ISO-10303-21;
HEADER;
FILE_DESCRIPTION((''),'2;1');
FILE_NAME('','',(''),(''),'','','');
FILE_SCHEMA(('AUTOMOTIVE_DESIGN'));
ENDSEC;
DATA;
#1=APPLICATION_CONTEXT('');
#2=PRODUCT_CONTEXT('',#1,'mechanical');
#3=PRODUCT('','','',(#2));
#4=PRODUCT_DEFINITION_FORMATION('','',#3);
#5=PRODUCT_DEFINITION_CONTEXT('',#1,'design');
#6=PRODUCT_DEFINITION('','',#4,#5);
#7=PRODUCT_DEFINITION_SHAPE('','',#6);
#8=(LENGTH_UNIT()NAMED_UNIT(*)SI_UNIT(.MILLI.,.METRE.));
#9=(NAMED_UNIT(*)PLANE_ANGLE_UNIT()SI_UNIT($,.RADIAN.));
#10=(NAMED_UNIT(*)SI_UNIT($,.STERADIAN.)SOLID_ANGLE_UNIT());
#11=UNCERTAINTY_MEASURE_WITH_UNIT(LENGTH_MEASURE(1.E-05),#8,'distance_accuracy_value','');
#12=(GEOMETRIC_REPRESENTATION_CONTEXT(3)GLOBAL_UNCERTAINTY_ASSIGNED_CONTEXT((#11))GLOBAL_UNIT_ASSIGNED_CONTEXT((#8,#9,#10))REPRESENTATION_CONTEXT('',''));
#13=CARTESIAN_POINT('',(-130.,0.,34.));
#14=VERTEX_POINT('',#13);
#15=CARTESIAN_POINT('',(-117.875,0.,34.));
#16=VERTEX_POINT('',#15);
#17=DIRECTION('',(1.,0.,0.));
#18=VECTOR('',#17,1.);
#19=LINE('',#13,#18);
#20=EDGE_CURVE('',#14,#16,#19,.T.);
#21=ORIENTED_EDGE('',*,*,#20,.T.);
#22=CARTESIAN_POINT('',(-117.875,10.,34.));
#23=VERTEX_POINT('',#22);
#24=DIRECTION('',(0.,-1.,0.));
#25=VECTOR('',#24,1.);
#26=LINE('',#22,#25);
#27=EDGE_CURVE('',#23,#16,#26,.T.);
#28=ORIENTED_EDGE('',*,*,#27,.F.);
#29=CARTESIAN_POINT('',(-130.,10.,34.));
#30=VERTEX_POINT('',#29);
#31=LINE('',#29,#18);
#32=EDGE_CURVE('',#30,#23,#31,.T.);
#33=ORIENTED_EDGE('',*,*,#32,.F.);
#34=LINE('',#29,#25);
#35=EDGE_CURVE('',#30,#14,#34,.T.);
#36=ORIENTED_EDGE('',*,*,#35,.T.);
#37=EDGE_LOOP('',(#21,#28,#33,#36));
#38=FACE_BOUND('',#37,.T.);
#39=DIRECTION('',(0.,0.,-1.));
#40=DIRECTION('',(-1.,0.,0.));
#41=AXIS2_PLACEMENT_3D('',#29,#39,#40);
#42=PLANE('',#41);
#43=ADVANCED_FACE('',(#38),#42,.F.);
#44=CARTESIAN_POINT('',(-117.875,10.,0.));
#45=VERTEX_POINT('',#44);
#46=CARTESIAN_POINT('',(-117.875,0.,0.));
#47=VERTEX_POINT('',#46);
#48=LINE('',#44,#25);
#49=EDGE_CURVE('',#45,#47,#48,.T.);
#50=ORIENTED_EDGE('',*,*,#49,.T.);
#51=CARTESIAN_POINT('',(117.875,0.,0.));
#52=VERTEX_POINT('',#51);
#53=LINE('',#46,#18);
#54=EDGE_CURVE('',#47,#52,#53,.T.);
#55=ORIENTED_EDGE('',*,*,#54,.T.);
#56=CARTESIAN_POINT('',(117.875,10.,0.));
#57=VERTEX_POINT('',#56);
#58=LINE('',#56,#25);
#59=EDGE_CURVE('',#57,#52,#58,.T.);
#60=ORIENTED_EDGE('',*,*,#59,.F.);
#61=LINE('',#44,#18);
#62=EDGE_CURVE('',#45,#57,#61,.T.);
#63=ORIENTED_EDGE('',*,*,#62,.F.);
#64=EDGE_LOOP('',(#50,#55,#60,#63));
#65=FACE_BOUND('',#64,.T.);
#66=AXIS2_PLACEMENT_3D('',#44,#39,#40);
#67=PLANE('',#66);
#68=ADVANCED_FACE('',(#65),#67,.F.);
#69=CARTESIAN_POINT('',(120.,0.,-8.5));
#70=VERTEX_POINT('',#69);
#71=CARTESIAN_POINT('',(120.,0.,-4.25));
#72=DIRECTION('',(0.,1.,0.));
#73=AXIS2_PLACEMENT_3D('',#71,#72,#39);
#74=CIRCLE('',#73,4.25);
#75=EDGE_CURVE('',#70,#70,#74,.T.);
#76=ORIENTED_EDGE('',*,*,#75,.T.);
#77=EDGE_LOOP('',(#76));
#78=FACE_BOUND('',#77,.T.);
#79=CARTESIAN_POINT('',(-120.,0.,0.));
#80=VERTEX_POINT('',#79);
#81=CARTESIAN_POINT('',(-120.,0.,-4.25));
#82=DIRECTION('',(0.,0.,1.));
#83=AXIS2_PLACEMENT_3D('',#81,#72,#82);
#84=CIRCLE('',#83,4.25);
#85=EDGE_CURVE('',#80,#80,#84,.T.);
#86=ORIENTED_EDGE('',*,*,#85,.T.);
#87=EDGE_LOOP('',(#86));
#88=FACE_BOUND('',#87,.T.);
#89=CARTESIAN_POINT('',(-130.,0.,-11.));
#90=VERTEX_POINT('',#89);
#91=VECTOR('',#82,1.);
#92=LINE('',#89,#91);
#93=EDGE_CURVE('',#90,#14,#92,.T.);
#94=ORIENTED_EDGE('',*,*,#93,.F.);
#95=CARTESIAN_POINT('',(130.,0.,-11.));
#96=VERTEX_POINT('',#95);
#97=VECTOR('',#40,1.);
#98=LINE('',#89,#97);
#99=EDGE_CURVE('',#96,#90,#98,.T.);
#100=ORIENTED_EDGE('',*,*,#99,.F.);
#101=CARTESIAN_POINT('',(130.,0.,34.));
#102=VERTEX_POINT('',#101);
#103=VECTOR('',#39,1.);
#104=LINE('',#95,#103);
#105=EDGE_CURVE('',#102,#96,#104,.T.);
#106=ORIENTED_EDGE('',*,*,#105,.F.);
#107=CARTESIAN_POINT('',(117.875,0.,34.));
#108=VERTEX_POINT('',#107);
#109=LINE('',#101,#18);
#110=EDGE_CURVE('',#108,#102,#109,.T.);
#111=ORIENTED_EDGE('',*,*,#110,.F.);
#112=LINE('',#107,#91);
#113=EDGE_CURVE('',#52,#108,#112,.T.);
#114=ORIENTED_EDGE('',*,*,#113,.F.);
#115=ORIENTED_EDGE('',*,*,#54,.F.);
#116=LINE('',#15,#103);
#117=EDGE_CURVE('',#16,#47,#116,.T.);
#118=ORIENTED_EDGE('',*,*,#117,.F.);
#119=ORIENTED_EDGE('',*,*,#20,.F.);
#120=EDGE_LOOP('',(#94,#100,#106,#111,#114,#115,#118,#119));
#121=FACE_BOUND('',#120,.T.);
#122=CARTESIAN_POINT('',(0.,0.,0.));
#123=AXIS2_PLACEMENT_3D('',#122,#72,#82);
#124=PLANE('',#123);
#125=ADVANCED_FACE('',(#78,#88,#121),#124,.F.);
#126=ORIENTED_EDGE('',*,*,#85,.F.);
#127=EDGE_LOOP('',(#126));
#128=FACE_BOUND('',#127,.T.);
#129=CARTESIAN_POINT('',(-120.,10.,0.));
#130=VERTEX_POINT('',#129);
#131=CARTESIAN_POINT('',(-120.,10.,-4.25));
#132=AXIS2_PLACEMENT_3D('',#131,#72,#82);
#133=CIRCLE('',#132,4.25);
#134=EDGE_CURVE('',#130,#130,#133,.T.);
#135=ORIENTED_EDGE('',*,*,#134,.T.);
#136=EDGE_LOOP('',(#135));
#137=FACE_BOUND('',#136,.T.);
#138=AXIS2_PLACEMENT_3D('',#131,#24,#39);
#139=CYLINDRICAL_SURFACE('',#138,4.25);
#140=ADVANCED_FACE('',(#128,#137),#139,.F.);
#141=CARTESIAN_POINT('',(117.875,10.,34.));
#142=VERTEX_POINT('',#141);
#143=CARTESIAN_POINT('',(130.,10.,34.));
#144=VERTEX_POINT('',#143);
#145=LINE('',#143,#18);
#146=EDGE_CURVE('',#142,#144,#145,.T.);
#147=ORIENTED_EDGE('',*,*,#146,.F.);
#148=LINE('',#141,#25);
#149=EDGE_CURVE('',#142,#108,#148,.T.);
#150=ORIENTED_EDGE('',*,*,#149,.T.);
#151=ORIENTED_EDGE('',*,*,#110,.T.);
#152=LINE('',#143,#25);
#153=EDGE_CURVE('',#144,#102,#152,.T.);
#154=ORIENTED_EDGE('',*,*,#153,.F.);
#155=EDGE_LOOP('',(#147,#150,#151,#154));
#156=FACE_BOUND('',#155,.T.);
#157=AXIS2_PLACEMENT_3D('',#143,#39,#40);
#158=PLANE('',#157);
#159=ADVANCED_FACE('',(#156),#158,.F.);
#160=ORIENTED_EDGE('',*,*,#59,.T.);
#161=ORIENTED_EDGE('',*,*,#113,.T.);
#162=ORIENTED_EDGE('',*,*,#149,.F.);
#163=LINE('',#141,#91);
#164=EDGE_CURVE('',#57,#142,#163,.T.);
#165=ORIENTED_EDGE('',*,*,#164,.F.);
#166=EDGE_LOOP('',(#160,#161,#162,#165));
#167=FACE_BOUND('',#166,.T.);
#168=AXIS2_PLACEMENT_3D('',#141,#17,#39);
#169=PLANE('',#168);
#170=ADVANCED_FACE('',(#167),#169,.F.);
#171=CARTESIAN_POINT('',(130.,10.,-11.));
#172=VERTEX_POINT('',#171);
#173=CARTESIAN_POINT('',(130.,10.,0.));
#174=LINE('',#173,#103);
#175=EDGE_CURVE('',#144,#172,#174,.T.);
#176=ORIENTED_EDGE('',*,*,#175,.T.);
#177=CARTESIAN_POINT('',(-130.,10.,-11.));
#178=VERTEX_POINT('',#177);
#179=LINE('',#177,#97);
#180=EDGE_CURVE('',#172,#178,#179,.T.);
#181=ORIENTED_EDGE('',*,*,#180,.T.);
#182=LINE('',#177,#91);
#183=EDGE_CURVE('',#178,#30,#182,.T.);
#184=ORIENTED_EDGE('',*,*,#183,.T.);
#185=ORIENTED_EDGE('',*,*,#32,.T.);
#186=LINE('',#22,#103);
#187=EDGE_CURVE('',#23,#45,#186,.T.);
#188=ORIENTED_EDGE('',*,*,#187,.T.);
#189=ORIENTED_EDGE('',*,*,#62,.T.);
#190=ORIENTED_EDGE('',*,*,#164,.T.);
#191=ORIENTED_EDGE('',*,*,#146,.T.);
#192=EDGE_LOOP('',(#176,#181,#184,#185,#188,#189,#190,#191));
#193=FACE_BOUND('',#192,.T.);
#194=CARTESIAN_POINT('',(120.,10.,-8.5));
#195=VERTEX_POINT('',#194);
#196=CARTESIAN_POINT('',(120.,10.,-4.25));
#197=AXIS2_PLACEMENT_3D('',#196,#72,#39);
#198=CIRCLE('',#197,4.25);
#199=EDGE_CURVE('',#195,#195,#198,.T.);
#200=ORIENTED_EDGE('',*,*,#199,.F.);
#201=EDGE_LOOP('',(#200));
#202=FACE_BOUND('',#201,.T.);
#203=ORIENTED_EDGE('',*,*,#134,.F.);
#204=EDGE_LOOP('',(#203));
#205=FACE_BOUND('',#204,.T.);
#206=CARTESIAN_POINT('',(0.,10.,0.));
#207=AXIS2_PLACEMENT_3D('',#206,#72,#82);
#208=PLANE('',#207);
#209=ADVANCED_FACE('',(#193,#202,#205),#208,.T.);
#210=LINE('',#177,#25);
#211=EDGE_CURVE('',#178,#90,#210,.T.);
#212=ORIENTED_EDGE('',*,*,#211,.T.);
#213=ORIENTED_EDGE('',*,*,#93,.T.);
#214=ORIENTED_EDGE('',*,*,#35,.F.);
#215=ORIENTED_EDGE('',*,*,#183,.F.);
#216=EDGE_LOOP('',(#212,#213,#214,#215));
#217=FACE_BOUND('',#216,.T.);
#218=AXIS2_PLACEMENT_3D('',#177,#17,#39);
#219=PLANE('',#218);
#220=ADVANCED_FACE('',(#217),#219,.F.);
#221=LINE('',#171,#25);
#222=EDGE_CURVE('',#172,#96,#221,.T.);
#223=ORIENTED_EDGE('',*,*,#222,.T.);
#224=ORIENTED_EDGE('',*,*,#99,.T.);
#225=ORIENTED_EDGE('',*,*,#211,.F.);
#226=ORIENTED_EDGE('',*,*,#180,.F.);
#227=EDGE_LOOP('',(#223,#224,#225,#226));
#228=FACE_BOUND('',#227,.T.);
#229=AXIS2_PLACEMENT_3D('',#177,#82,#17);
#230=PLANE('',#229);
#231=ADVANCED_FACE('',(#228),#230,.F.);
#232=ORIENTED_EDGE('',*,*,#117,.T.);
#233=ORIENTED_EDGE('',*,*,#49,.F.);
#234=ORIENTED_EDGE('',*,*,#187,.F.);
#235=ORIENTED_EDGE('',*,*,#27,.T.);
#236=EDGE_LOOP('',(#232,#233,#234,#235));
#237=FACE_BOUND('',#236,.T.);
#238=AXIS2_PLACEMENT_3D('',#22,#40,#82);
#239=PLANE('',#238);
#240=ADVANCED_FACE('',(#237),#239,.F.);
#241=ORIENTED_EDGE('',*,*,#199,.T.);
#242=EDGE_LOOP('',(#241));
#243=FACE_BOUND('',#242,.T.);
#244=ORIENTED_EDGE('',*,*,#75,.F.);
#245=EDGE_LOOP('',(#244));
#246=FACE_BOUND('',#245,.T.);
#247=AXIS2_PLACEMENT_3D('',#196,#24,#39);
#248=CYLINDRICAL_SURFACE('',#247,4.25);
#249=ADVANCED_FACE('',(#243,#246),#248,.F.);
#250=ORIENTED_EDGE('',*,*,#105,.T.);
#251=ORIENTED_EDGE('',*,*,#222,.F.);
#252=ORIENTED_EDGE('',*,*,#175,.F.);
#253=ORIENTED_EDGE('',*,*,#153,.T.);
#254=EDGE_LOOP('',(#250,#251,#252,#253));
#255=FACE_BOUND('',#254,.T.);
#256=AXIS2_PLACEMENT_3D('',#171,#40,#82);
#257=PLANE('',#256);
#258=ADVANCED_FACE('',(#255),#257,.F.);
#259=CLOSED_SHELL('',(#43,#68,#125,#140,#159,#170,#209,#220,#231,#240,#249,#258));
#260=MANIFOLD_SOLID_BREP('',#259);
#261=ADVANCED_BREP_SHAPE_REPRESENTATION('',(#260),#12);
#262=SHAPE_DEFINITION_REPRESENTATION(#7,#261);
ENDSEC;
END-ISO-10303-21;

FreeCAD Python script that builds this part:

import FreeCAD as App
import Part
import Sketcher


def add_polygon(sketch, points):
    """Adds a closed chain of lines whose ends are joined by coincident constraints."""
    first, n = sketch.GeometryCount, len(points)
    for a, b in zip(points, points[1:] + points[:1]):
        sketch.addGeometry(Part.LineSegment(App.Vector(*a, 0), App.Vector(*b, 0)), False)
    for i in range(n):
        sketch.addConstraint(Sketcher.Constraint("Coincident", first + i, 2, first + (i + 1) % n, 1))

doc = App.newDocument("Part")
body = doc.addObject("PartDesign::Body", "Body")

# Sketch on XZ plane
sketch1 = body.newObject("Sketcher::SketchObject", "Sketch")
sketch1.AttachmentSupport = (doc.getObject("XZ_Plane"), [""])
sketch1.MapMode = "FlatFace"
add_polygon(sketch1, [(130, -11), (-130, -11), (-130, 34), (-117.9, 34), (-117.9, 0), (117.9, 0), (117.9, 34), (130, 34)])  # lines 0-7
sketch1.addGeometry(Part.Circle(App.Vector(120, -4.2, 0), App.Vector(0, 0, 1), 4.2), False)  # 8
sketch1.addGeometry(Part.Circle(App.Vector(-120, -4.2, 0), App.Vector(0, 0, 1), 4.2), False)  # 9
sketch1.addConstraint([
    Sketcher.Constraint("Horizontal", 0),
    Sketcher.Constraint("Vertical", 1),
    Sketcher.Constraint("Horizontal", 2),
    Sketcher.Constraint("Vertical", 3),
    Sketcher.Constraint("Horizontal", 4),
    Sketcher.Constraint("Vertical", 5),
    Sketcher.Constraint("Horizontal", 6),
    Sketcher.Constraint("Vertical", 7),
    Sketcher.Constraint("Equal", 8, 9),
    Sketcher.Constraint("Symmetric", 3, 2, 4, 2, -1, 1),
    Sketcher.Constraint("Symmetric", 8, 3, 9, 3, -2),
    Sketcher.Constraint("Symmetric", 1, 2, 6, 2, -2),
    Sketcher.Constraint("Diameter", 8, 8.5),
    Sketcher.Constraint("DistanceX", 0, 2, 0, 1, 260.0),
    Sketcher.Constraint("DistanceY", 1, 1, 1, 2, 45.0),
    Sketcher.Constraint("DistanceY", 3, 2, 3, 1, 34.0),
    Sketcher.Constraint("DistanceX", -1, 1, 8, 3, 120.0),
    Sketcher.Constraint("DistanceX", 4, 1, 4, 2, 235.75),
    Sketcher.Constraint("DistanceY", 8, 3, -1, 1, 4.25),
])
pad1 = body.newObject("PartDesign::Pad", "Pad")
pad1.Profile = sketch1
pad1.Length = 10
pad1.Reversed = True

doc.recompute()
